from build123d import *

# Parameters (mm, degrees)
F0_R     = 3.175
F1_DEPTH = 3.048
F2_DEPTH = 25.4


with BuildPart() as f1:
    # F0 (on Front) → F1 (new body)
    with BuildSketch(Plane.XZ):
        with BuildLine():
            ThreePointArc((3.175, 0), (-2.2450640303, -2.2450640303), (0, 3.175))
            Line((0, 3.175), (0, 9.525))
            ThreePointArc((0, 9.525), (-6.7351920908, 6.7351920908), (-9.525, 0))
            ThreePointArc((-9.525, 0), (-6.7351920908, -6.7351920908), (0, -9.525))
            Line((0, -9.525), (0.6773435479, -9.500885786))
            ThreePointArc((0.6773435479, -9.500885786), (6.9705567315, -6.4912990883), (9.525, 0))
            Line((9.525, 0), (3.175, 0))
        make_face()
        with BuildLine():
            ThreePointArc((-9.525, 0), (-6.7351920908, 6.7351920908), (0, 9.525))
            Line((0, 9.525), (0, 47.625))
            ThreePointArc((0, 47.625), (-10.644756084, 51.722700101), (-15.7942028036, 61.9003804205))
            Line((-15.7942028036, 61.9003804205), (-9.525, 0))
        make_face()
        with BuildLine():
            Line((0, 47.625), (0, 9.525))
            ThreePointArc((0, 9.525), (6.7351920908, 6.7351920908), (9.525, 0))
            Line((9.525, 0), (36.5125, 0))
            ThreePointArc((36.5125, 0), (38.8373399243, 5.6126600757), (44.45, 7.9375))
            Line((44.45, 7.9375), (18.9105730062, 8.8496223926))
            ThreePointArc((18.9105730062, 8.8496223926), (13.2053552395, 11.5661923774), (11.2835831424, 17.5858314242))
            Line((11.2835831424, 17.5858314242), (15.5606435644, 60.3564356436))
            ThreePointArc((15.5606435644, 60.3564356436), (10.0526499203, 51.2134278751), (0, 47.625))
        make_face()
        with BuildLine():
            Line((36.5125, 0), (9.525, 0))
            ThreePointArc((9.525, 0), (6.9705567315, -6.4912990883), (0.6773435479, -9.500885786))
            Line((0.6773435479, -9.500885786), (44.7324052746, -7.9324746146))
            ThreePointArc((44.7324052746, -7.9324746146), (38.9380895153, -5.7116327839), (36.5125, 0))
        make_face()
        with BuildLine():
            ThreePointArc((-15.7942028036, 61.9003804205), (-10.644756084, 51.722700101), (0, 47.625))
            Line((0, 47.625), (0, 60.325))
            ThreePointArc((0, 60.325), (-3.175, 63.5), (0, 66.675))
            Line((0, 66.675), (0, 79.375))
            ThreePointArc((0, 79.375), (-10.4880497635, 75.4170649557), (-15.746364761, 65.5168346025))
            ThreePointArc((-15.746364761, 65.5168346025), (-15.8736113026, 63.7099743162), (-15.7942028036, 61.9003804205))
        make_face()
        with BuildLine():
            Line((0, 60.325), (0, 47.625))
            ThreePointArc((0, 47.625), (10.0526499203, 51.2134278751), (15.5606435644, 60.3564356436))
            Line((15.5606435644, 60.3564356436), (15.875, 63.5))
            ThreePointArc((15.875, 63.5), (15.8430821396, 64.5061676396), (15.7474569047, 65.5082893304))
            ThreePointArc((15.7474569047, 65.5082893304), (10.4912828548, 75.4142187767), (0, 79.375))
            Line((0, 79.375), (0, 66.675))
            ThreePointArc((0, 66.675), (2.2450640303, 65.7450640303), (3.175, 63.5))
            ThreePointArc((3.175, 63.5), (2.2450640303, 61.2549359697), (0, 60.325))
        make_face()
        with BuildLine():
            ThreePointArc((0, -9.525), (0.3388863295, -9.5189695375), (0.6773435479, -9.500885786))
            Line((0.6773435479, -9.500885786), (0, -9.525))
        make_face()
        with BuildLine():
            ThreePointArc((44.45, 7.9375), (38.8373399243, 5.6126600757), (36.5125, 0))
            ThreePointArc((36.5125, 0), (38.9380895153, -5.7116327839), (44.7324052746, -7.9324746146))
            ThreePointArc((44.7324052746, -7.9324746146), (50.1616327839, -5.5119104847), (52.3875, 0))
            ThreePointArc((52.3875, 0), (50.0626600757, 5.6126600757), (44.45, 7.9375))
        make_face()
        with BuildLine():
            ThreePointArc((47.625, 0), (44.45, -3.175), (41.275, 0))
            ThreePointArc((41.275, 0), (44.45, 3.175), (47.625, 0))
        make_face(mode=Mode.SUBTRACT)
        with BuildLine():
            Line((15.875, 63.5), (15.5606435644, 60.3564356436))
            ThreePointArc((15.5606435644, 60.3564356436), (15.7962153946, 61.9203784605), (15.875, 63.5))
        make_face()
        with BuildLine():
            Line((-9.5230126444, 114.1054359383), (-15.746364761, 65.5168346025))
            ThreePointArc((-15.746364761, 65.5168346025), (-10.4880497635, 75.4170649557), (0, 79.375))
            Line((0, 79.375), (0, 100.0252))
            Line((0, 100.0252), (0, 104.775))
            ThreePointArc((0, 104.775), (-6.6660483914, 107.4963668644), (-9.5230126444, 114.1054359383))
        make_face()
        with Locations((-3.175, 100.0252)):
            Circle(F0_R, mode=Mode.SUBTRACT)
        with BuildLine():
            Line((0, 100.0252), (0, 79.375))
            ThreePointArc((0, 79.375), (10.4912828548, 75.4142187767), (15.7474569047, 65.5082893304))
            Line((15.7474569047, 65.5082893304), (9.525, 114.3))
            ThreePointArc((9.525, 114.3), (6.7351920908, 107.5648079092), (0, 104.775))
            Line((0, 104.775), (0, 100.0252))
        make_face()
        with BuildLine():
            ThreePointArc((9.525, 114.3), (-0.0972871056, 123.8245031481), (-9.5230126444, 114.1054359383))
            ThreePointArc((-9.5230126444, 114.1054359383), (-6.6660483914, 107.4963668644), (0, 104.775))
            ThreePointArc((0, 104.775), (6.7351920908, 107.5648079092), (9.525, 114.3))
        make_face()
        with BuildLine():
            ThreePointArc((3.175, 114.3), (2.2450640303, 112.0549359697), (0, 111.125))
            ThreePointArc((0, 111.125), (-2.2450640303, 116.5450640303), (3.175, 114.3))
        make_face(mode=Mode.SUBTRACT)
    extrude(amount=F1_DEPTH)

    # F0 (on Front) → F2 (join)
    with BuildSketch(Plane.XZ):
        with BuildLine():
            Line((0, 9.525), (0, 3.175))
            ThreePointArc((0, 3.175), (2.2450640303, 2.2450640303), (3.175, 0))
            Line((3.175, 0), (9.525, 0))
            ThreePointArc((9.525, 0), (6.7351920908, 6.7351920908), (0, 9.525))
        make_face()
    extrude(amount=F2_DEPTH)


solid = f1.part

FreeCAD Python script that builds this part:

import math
import FreeCAD as App
import Part
import Sketcher

V = App.Vector
Q = App.Units.Quantity

doc = App.newDocument("Part")
body = doc.addObject("PartDesign::Body", "Body")

sketch1 = body.newObject("Sketcher::SketchObject", "Sketch")
sketch1.AttachmentSupport = (doc.getObject("XZ_Plane"), [""])
sketch1.MapMode = "FlatFace"
sketch1.addGeometry(Part.ArcOfCircle(Part.Circle(V(0, 0, 0), V(0, 0, 1), 9.525), math.radians(180), math.radians(270)), False)
sketch1.addGeometry(Part.ArcOfCircle(Part.Circle(V(0, 0, 0), V(0, 0, 1), 9.525), math.radians(-90), math.radians(-85.92213)), False)
sketch1.addGeometry(Part.LineSegment(V(0.677344, -9.500886, 0), V(44.732405, -7.932475, 0)), False)
sketch1.addGeometry(Part.ArcOfCircle(Part.Circle(V(44.45, 0, 0), V(0, 0, 1), 7.9375), math.radians(-87.961065), math.radians(90)), False)
sketch1.addGeometry(Part.LineSegment(V(44.45, 7.9375, 0), V(18.910573, 8.849622, 0)), False)
sketch1.addGeometry(Part.ArcOfCircle(Part.Circle(V(19.194328, 16.794757, 0), V(0, 0, 1), 7.9502), math.radians(174.289407), math.radians(267.954592)), False)
sketch1.addGeometry(Part.LineSegment(V(11.283583, 17.585831, 0), V(15.560644, 60.356436, 0)), False)
sketch1.addGeometry(Part.ArcOfCircle(Part.Circle(V(0, 63.5, 0), V(0, 0, 1), 15.875), math.radians(-11.421186), math.radians(0)), False)
sketch1.addGeometry(Part.ArcOfCircle(Part.Circle(V(0, 63.5, 0), V(0, 0, 1), 15.875), math.radians(0), math.radians(7.267758)), False)
sketch1.addGeometry(Part.LineSegment(V(15.747457, 65.508289, 0), V(9.525, 114.3, 0)), False)
sketch1.addGeometry(Part.ArcOfCircle(Part.Circle(V(0, 114.3, 0), V(0, 0, 1), 9.525), math.radians(0), math.radians(181.170444)), False)
sketch1.addGeometry(Part.LineSegment(V(-9.523013, 114.105436, 0), V(-15.746365, 65.516835, 0)), False)
sketch1.addGeometry(Part.ArcOfCircle(Part.Circle(V(0, 63.5, 0), V(0, 0, 1), 15.875), math.radians(172.70115), math.radians(185.783134)), False)
sketch1.addGeometry(Part.LineSegment(V(-15.794203, 61.90038, 0), V(-9.525, 0, 0)), False)
sketch1.addGeometry(Part.ArcOfCircle(Part.Circle(V(0, 0, 0), V(0, 0, 1), 9.525), math.radians(0), math.radians(90)), False)
sketch1.addGeometry(Part.LineSegment(V(9.525, 0, 0), V(3.175, 0, 0)), False)
sketch1.addGeometry(Part.ArcOfCircle(Part.Circle(V(0, 0, 0), V(0, 0, 1), 3.175), math.radians(90), math.radians(360)), False)
sketch1.addGeometry(Part.LineSegment(V(0, 3.175, 0), V(0, 9.525, 0)), False)
sketch1.addGeometry(Part.Circle(V(44.45, 0, 0), V(0, 0, 1), 3.175), False)
sketch1.addGeometry(Part.ArcOfCircle(Part.Circle(V(0, 63.5, 0), V(0, 0, 1), 3.175), math.radians(90), math.radians(270)), False)
sketch1.addGeometry(Part.ArcOfCircle(Part.Circle(V(0, 63.5, 0), V(0, 0, 1), 3.175), math.radians(0), math.radians(90)), False)
sketch1.addGeometry(Part.ArcOfCircle(Part.Circle(V(0, 63.5, 0), V(0, 0, 1), 3.175), math.radians(-90), math.radians(0)), False)
sketch1.addGeometry(Part.Circle(V(-3.175, 100.0252, 0), V(0, 0, 1), 3.175), False)
sketch1.addGeometry(Part.ArcOfCircle(Part.Circle(V(0, 114.3, 0), V(0, 0, 1), 3.175), math.radians(0), math.radians(270)), False)
sketch1.addGeometry(Part.ArcOfCircle(Part.Circle(V(0, 114.3, 0), V(0, 0, 1), 3.175), math.radians(-90), math.radians(0)), False)
sketch1.addConstraint(Sketcher.Constraint("Coincident", 0, 2, 1, 1))
sketch1.addConstraint(Sketcher.Constraint("Coincident", 1, 2, 2, 1))
sketch1.addConstraint(Sketcher.Constraint("Coincident", 2, 2, 3, 1))
sketch1.addConstraint(Sketcher.Constraint("Coincident", 3, 2, 4, 1))
sketch1.addConstraint(Sketcher.Constraint("Coincident", 4, 2, 5, 2))
sketch1.addConstraint(Sketcher.Constraint("Coincident", 5, 1, 6, 1))
sketch1.addConstraint(Sketcher.Constraint("Coincident", 6, 2, 7, 1))
sketch1.addConstraint(Sketcher.Constraint("Coincident", 7, 2, 8, 1))
sketch1.addConstraint(Sketcher.Constraint("Coincident", 8, 2, 9, 1))
sketch1.addConstraint(Sketcher.Constraint("Coincident", 9, 2, 10, 1))
sketch1.addConstraint(Sketcher.Constraint("Coincident", 10, 2, 11, 1))
sketch1.addConstraint(Sketcher.Constraint("Coincident", 11, 2, 12, 1))
sketch1.addConstraint(Sketcher.Constraint("Coincident", 12, 2, 13, 1))
sketch1.addConstraint(Sketcher.Constraint("Coincident", 13, 2, 0, 1))
sketch1.addConstraint(Sketcher.Constraint("Coincident", 14, 1, 15, 1))
sketch1.addConstraint(Sketcher.Constraint("Coincident", 15, 2, 16, 2))
sketch1.addConstraint(Sketcher.Constraint("Coincident", 16, 1, 17, 1))
sketch1.addConstraint(Sketcher.Constraint("Coincident", 17, 2, 14, 2))
sketch1.addConstraint(Sketcher.Constraint("Coincident", 19, 1, 20, 2))
sketch1.addConstraint(Sketcher.Constraint("Coincident", 20, 1, 21, 2))
sketch1.addConstraint(Sketcher.Constraint("Coincident", 21, 1, 19, 2))
sketch1.addConstraint(Sketcher.Constraint("Coincident", 23, 1, 24, 2))
sketch1.addConstraint(Sketcher.Constraint("Coincident", 24, 1, 23, 2))
sketch1.addConstraint(Sketcher.Constraint("Horizontal", 15))
sketch1.addConstraint(Sketcher.Constraint("Vertical", 17))
sketch1.addConstraint(Sketcher.Constraint("Coincident", 0, 3, -1, 1))
sketch1.addConstraint(Sketcher.Constraint("Coincident", 1, 3, -1, 1))
sketch1.addConstraint(Sketcher.Constraint("Coincident", 14, 3, -1, 1))
sketch1.addConstraint(Sketcher.Constraint("Coincident", 16, 3, -1, 1))
sketch1.addConstraint(Sketcher.Constraint("Coincident", 8, 3, 7, 3))
sketch1.addConstraint(Sketcher.Constraint("Coincident", 12, 3, 7, 3))
sketch1.addConstraint(Sketcher.Constraint("Coincident", 18, 3, 3, 3))
sketch1.addConstraint(Sketcher.Constraint("Coincident", 19, 3, 7, 3))
sketch1.addConstraint(Sketcher.Constraint("Coincident", 20, 3, 7, 3))
sketch1.addConstraint(Sketcher.Constraint("Coincident", 23, 3, 10, 3))
sketch1.addConstraint(Sketcher.Constraint("PointOnObject", 3, 3, -1))
sketch1.addConstraint(Sketcher.Constraint("PointOnObject", 7, 3, -2))
sketch1.addConstraint(Sketcher.Constraint("PointOnObject", 10, 3, -2))
sketch1.addConstraint(Sketcher.Constraint("PointOnObject", 21, 3, -2))
sketch1.addConstraint(Sketcher.Constraint("PointOnObject", 24, 3, -2))
sketch1.addConstraint(Sketcher.Constraint("PointOnObject", 0, 2, -2))
sketch1.addConstraint(Sketcher.Constraint("PointOnObject", 13, 2, -1))
sketch1.addConstraint(Sketcher.Constraint("PointOnObject", 14, 1, -1))
sketch1.addConstraint(Sketcher.Constraint("PointOnObject", 16, 1, -2))
sketch1.addConstraint(Sketcher.Constraint("PointOnObject", 19, 1, -2))
sketch1.addConstraint(Sketcher.Constraint("PointOnObject", 21, 1, -2))
sketch1.addConstraint(Sketcher.Constraint("PointOnObject", 24, 1, -2))
sketch1.addConstraint(Sketcher.Constraint("Diameter", 18, Q("0.25 in")))
sketch1.addConstraint(Sketcher.Constraint("Diameter", 22, Q("0.25 in")))
sketch1.addConstraint(Sketcher.Constraint("Radius", 0, Q("0.375 in")))
sketch1.addConstraint(Sketcher.Constraint("Radius", 3, Q("0.3125 in")))
sketch1.addConstraint(Sketcher.Constraint("Radius", 5, Q("0.313 in")))
sketch1.addConstraint(Sketcher.Constraint("Radius", 7, Q("0.625 in")))
sketch1.addConstraint(Sketcher.Constraint("Radius", 10, Q("0.375 in")))
sketch1.addConstraint(Sketcher.Constraint("Radius", 12, Q("0.625 in")))
sketch1.addConstraint(Sketcher.Constraint("Radius", 14, Q("0.375 in")))
sketch1.addConstraint(Sketcher.Constraint("Radius", 16, Q("0.125 in")))
sketch1.addConstraint(Sketcher.Constraint("Radius", 19, Q("0.125 in")))
sketch1.addConstraint(Sketcher.Constraint("Radius", 23, Q("0.125 in")))
sketch1.addConstraint(Sketcher.Constraint("DistanceY", 8, 3, 10, 3, Q("2 in")))
sketch1.addConstraint(Sketcher.Constraint("DistanceY", -1, 1, 7, 3, Q("2.5 in")))
sketch1.addConstraint(Sketcher.Constraint("DistanceY", -1, 1, 7, 2, Q("2.5 in")))
sketch1.addConstraint(Sketcher.Constraint("DistanceY", -1, 1, 9, 2, Q("4.5 in")))
sketch1.addConstraint(Sketcher.Constraint("DistanceY", -1, 1, 20, 1, Q("2.5 in")))
sketch1.addConstraint(Sketcher.Constraint("DistanceY", -1, 1, 23, 1, Q("4.5 in")))
sketch1.addConstraint(Sketcher.Constraint("DistanceX", 22, 3, 9, 2, Q("0.5 in")))
sketch1.addConstraint(Sketcher.Constraint("DistanceX", -1, 1, 3, 3, Q("1.75 in")))
sketch1.addConstraint(Sketcher.Constraint("DistanceX", -1, 1, 3, 2, Q("1.75 in")))
sketch1.addConstraint(Sketcher.Constraint("DistanceY", -1, 1, 22, 3, Q("3.938 in")))
sketch1.addConstraint(Sketcher.Constraint("Distance", 2, 44.082972))
sketch1.addConstraint(Sketcher.Constraint("Distance", 4, 25.55571))
sketch1.addConstraint(Sketcher.Constraint("Distance", 9, 49.186888))
sketch1.addConstraint(Sketcher.Constraint("Distance", 11, 48.985531))
sketch1.addConstraint(Sketcher.Constraint("Distance", 13, 62.217039))
sketch1.addConstraint(Sketcher.Constraint("DistanceY", -1, 1, 5, 1, 17.585831))
sketch1.addConstraint(Sketcher.Constraint("DistanceY", 2, 2, 5, 3, 24.727232))
sketch1.addConstraint(Sketcher.Constraint("DistanceY", 1, 2, 2, 2, 1.568411))
sketch1.addConstraint(Sketcher.Constraint("DistanceX", 5, 1, 4, 2, 7.62699))
sketch1.addConstraint(Sketcher.Constraint("DistanceX", 12, 2, 11, 2, 0.047838))
sketch1.addConstraint(Sketcher.Constraint("Distance", 6, 42.983925))
pad1 = body.newObject("PartDesign::Pad", "Pad")
pad1.Profile = sketch1
pad1.Length = Q("0.12 in")

sketch2 = body.newObject("Sketcher::SketchObject", "Sketch001")
sketch2.AttachmentSupport = (doc.getObject("XZ_Plane"), [""])
sketch2.MapMode = "FlatFace"
sketch2.addGeometry(Part.LineSegment(V(0, 9.5, 0), V(0, 3.2, 0)), False)
sketch2.addGeometry(Part.ArcOfCircle(Part.Circle(V(0, 0, 0), V(0, 0, 1), 3.2), math.radians(0), math.radians(90)), False)
sketch2.addGeometry(Part.LineSegment(V(3.2, 0, 0), V(9.5, 0, 0)), False)
sketch2.addGeometry(Part.ArcOfCircle(Part.Circle(V(0, 0, 0), V(0, 0, 1), 9.5), math.radians(0), math.radians(90)), False)
sketch2.addConstraint(Sketcher.Constraint("Coincident", 0, 2, 1, 2))
sketch2.addConstraint(Sketcher.Constraint("Coincident", 1, 1, 2, 1))
sketch2.addConstraint(Sketcher.Constraint("Coincident", 2, 2, 3, 1))
sketch2.addConstraint(Sketcher.Constraint("Coincident", 3, 2, 0, 1))
sketch2.addConstraint(Sketcher.Constraint("Vertical", 0))
sketch2.addConstraint(Sketcher.Constraint("Horizontal", 2))
sketch2.addConstraint(Sketcher.Constraint("Coincident", 1, 3, -1, 1))
sketch2.addConstraint(Sketcher.Constraint("Coincident", 3, 3, -1, 1))
sketch2.addConstraint(Sketcher.Constraint("PointOnObject", 0, 2, -2))
sketch2.addConstraint(Sketcher.Constraint("PointOnObject", 1, 1, -1))
sketch2.addConstraint(Sketcher.Constraint("Radius", 1, Q("0.125 in")))
sketch2.addConstraint(Sketcher.Constraint("Radius", 3, Q("0.375 in")))
pad2 = body.newObject("PartDesign::Pad", "Pad001")
pad2.Profile = sketch2
pad2.Length = Q("1 in")

doc.recompute()
